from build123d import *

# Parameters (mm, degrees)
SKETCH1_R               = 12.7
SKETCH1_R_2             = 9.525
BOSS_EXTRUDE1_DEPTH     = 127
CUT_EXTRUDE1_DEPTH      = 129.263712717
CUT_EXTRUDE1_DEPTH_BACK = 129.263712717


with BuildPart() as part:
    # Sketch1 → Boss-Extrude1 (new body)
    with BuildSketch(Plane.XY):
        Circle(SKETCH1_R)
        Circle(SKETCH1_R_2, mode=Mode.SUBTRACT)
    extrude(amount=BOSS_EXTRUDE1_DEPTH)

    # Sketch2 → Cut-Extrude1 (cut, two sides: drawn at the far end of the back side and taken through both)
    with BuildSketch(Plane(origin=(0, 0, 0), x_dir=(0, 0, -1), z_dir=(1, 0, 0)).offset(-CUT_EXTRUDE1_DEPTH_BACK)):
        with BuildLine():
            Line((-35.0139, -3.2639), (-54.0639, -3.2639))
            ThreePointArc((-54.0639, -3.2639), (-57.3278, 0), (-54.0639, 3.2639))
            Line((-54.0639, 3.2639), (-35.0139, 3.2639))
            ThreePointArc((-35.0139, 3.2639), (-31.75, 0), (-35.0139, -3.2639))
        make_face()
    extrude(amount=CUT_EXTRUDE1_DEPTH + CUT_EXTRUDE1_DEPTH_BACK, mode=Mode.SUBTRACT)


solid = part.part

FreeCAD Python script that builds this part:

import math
import FreeCAD as App
import Part
import Sketcher

V = App.Vector
Q = App.Units.Quantity

doc = App.newDocument("Part")
body = doc.addObject("PartDesign::Body", "Body")

sketch1 = body.newObject("Sketcher::SketchObject", "Sketch")
sketch1.AttachmentSupport = (doc.getObject("XY_Plane"), [""])
sketch1.MapMode = "FlatFace"
sketch1.addGeometry(Part.Circle(V(0, 0, 0), V(0, 0, 1), 13), False)
sketch1.addGeometry(Part.Circle(V(0, 0, 0), V(0, 0, 1), 10), False)
sketch1.addConstraint(Sketcher.Constraint("Coincident", 0, 3, -1, 1))
sketch1.addConstraint(Sketcher.Constraint("Coincident", 1, 3, -1, 1))
sketch1.addConstraint(Sketcher.Constraint("Diameter", 0, Q("1 in")))
sketch1.addConstraint(Sketcher.Constraint("Diameter", 1, Q("0.75 in")))
pad1 = body.newObject("PartDesign::Pad", "Pad")
pad1.Profile = sketch1
pad1.Length = Q("5 in")

sketch2 = body.newObject("Sketcher::SketchObject", "Sketch001")
sketch2.AttachmentSupport = (doc.getObject("YZ_Plane"), [""])
sketch2.MapMode = "FlatFace"
sketch2.addGeometry(Part.LineSegment(V(-3.3, 54.1, 0), V(-3.3, 35, 0)), False)
sketch2.addGeometry(Part.ArcOfCircle(Part.Circle(V(0, 35, 0), V(0, 0, 1), 3.3), math.radians(180), math.radians(360)), False)
sketch2.addGeometry(Part.LineSegment(V(3.3, 35, 0), V(3.3, 54.1, 0)), False)
sketch2.addGeometry(Part.ArcOfCircle(Part.Circle(V(0, 54.1, 0), V(0, 0, 1), 3.3), math.radians(0), math.radians(180)), False)
sketch2.addConstraint(Sketcher.Constraint("Tangent", 0, 2, 1, 1))
sketch2.addConstraint(Sketcher.Constraint("Tangent", 1, 2, 2, 1))
sketch2.addConstraint(Sketcher.Constraint("Tangent", 2, 2, 3, 1))
sketch2.addConstraint(Sketcher.Constraint("Tangent", 3, 2, 0, 1))
sketch2.addConstraint(Sketcher.Constraint("Vertical", 0))
sketch2.addConstraint(Sketcher.Constraint("Vertical", 2))
sketch2.addConstraint(Sketcher.Constraint("PointOnObject", 1, 3, -2))
sketch2.addConstraint(Sketcher.Constraint("DistanceY", 0, 2, 0, 1, Q("0.75 in")))
sketch2.addConstraint(Sketcher.Constraint("Radius", 1, Q("0.1285 in")))
sketch2.addConstraint(Sketcher.Constraint("DistanceY", -1, 1, 1, 3, Q("1.3785 in")))
pocket1 = body.newObject("PartDesign::Pocket", "Pocket")
pocket1.Profile = sketch2
pocket1.Type = "ThroughAll"
pocket1.Midplane = True

doc.recompute()
